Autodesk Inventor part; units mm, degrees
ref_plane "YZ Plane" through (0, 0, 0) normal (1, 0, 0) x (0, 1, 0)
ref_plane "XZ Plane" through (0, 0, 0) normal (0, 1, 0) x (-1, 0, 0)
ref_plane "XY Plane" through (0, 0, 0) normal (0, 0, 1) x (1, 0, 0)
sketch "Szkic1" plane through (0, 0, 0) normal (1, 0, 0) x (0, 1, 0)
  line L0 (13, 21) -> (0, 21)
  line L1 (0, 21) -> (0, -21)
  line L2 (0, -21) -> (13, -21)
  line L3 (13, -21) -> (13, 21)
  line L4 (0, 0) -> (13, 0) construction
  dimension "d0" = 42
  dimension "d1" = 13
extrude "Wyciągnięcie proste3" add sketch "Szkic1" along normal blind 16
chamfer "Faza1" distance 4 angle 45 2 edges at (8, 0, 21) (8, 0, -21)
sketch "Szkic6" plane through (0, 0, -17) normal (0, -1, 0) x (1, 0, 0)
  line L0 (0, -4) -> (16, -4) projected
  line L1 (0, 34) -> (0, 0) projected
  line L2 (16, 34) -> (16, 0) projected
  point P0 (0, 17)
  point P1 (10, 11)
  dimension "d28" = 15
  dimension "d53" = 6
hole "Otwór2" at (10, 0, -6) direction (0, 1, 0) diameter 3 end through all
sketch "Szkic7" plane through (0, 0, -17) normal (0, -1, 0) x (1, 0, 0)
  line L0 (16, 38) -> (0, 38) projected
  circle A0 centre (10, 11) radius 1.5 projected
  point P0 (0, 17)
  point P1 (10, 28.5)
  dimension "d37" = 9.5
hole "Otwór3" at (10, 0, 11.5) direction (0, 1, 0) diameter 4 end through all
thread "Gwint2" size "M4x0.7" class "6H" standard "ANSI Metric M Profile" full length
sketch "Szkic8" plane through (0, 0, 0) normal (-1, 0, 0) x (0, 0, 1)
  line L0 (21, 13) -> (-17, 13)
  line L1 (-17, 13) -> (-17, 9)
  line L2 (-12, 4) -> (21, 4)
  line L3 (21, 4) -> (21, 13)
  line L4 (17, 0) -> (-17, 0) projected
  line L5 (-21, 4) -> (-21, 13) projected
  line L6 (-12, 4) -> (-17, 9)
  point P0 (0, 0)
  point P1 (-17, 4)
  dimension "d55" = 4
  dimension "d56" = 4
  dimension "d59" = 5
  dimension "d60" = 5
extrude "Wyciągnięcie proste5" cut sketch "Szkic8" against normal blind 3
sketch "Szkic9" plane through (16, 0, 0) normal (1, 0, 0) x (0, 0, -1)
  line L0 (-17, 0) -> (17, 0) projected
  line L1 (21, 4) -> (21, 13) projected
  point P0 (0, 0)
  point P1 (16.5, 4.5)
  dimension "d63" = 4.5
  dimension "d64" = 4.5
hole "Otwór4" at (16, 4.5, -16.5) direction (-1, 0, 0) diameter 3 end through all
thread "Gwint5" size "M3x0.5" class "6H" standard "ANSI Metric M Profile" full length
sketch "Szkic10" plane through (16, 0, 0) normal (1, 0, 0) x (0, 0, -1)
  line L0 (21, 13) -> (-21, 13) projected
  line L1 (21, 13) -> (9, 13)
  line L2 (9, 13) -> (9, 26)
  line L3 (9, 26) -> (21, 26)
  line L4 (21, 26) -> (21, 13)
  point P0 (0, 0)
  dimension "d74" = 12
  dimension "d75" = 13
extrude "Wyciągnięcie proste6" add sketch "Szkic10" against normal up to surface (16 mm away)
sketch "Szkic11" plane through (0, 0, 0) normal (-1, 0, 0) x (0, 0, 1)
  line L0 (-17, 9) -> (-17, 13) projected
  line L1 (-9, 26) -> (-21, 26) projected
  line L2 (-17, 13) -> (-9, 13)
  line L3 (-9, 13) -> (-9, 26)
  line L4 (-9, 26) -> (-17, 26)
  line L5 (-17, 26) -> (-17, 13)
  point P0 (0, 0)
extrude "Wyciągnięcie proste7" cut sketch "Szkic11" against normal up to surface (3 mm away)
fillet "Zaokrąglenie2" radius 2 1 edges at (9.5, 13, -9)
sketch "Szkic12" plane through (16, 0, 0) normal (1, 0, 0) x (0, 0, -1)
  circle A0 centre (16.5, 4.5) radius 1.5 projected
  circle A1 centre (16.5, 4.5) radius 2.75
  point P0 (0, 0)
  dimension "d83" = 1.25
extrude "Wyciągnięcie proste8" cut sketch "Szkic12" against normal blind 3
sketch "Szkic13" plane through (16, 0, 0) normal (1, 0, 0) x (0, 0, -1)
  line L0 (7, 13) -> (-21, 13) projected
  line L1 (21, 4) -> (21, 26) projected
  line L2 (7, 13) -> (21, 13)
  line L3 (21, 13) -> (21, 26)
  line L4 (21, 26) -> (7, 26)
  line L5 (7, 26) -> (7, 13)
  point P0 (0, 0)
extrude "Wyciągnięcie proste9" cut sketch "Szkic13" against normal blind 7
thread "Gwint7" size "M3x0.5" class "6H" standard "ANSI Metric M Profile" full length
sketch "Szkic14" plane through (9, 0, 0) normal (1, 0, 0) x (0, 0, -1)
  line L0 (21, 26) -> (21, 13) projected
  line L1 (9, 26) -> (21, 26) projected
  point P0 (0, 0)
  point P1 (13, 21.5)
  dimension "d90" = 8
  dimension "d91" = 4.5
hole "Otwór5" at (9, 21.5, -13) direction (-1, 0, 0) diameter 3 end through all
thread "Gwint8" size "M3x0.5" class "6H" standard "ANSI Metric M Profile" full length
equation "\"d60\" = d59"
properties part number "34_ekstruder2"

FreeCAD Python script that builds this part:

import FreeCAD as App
import Part
import Sketcher

V = App.Vector


def edges_at(feature, points):
    """Names of the edges that pass closest to the given points."""
    edges = feature.Shape.Edges
    near = lambda p: min(range(len(edges)), key=lambda i: edges[i].distToShape(Part.Vertex(*p))[0])
    return sorted({f"Edge{near(p) + 1}" for p in points})


def add_polygon(sketch, points):
    """Adds a closed chain of lines whose ends are joined by coincident constraints."""
    first, n = sketch.GeometryCount, len(points)
    for a, b in zip(points, points[1:] + points[:1]):
        sketch.addGeometry(Part.LineSegment(App.Vector(*a, 0), App.Vector(*b, 0)), False)
    for i in range(n):
        sketch.addConstraint(Sketcher.Constraint("Coincident", first + i, 2, first + (i + 1) % n, 1))

doc = App.newDocument("Part")
params = doc.addObject("Spreadsheet::Sheet", "Params")
for row, (alias, value) in enumerate([
    ("sketch1_width", "13 mm"),
    ("sketch1_height", "42 mm"),
    ("pad1_length", "16 mm"),
    ("chamfer_size", "4 mm"),
    ("sketch2_diameter", "3 mm"),
    ("hole_diameter", "3 mm"),
    ("sketch3_diameter", "4 mm"),
    ("hole2_diameter", "4 mm"),
    ("sketch4_width", "4 mm"),
    ("sketch4_height", "38 mm"),
    ("pocket1_length", "3 mm"),
    ("sketch5_diameter", "3 mm"),
    ("hole3_diameter", "3 mm"),
    ("sketch6_width", "13 mm"),
    ("sketch6_height", "12 mm"),
    ("pad2_length", "16 mm"),
    ("sketch7_width", "13 mm"),
    ("sketch7_height", "8 mm"),
    ("pocket2_length", "3 mm"),
    ("fillet_radius", "2 mm"),
    ("sketch8_diameter", "3 mm"),
    ("sketch8_diameter2", "5.5 mm"),
    ("pocket3_length", "3 mm"),
    ("sketch9_width", "13 mm"),
    ("sketch9_height", "14 mm"),
    ("pocket4_length", "7 mm"),
    ("sketch10_diameter", "3 mm"),
    ("hole4_diameter", "3 mm"),
], start=1):
    params.set(f"A{row}", alias)
    params.set(f"B{row}", "=" + value)
    params.setAlias(f"B{row}", alias)

body = doc.addObject("PartDesign::Body", "Body")

# Sketch on YZ plane
sketch1 = body.newObject("Sketcher::SketchObject", "Sketch")
sketch1.AttachmentSupport = (doc.getObject("YZ_Plane"), [""])
sketch1.MapMode = "FlatFace"
add_polygon(sketch1, [(13, -21), (13, 21), (0, 21), (0, -21)])  # lines 0-3
sketch1.addConstraint([
    Sketcher.Constraint("Vertical", 0),
    Sketcher.Constraint("Horizontal", 1),
    Sketcher.Constraint("Vertical", 2),
    Sketcher.Constraint("Horizontal", 3),
    Sketcher.Constraint("Symmetric", 1, 2, 2, 2, -1, 1),
    Sketcher.Constraint("DistanceX", 1, 2, 1, 1, 13.0),
    Sketcher.Constraint("DistanceY", 0, 1, 0, 2, 42.0),
])
sketch1.setExpression("Constraints[9]", "Params.sketch1_width")
sketch1.setExpression("Constraints[10]", "Params.sketch1_height")
pad1 = body.newObject("PartDesign::Pad", "Pad")
pad1.Profile = sketch1
pad1.setExpression("Length", "Params.pad1_length")
doc.recompute()

chamfer = body.newObject("PartDesign::Chamfer", "Chamfer")
chamfer.Base = (pad1, edges_at(pad1, [(8, 0, 21), (8, 0, -21)]))
chamfer.setExpression("Size", "Params.chamfer_size")

# Sketch on XZ plane
sketch2 = body.newObject("Sketcher::SketchObject", "Sketch001")
sketch2.AttachmentSupport = (doc.getObject("XZ_Plane"), [""])
sketch2.MapMode = "FlatFace"
sketch2.addGeometry(Part.Circle(V(10, -6, 0), V(0, 0, 1), 1.5), False)
sketch2.addConstraint([
    Sketcher.Constraint("Diameter", 0, 3.0),
    Sketcher.Constraint("DistanceX", -1, 1, 0, 3, 10.0),
    Sketcher.Constraint("DistanceY", 0, 3, -1, 1, 6.0),
])
sketch2.setExpression("Constraints[0]", "Params.sketch2_diameter")
doc.recompute()
hole = body.newObject("PartDesign::Hole", "Hole")
hole.Profile = sketch2
hole.ThreadType = "None"
hole.setExpression("Diameter", "Params.hole_diameter")
hole.DepthType = "ThroughAll"

# Sketch on XZ plane
sketch3 = body.newObject("Sketcher::SketchObject", "Sketch002")
sketch3.AttachmentSupport = (doc.getObject("XZ_Plane"), [""])
sketch3.MapMode = "FlatFace"
sketch3.addGeometry(Part.Circle(V(10, 11.5, 0), V(0, 0, 1), 2), False)
sketch3.addConstraint([
    Sketcher.Constraint("Diameter", 0, 4.0),
    Sketcher.Constraint("DistanceX", -1, 1, 0, 3, 10.0),
    Sketcher.Constraint("DistanceY", -1, 1, 0, 3, 11.5),
])
sketch3.setExpression("Constraints[0]", "Params.sketch3_diameter")
doc.recompute()
hole2 = body.newObject("PartDesign::Hole", "Hole001")
hole2.Profile = sketch3
hole2.ThreadType = "None"
hole2.setExpression("Diameter", "Params.hole2_diameter")
hole2.DepthType = "ThroughAll"

# Sketch on YZ plane
sketch4 = body.newObject("Sketcher::SketchObject", "Sketch003")
sketch4.AttachmentSupport = (doc.getObject("YZ_Plane"), [""])
sketch4.MapMode = "FlatFace"
add_polygon(sketch4, [(4, 21), (13, 21), (13, -17), (9, -17), (4, -12)])  # lines 0-4
sketch4.addConstraint([
    Sketcher.Constraint("Horizontal", 0),
    Sketcher.Constraint("Vertical", 1),
    Sketcher.Constraint("Horizontal", 2),
    Sketcher.Constraint("Vertical", 4),
    Sketcher.Constraint("DistanceX", 2, 2, 2, 1, 4.0),
    Sketcher.Constraint("DistanceX", -1, 1, 3, 2, 4.0),
    Sketcher.Constraint("DistanceX", 3, 2, 2, 2, 5.0),
    Sketcher.Constraint("DistanceY", 2, 2, 3, 2, 5.0),
    Sketcher.Constraint("DistanceY", 1, 2, 1, 1, 38.0),
    Sketcher.Constraint("DistanceY", -1, 1, 0, 2, 21.0),
])
sketch4.setExpression("Constraints[9]", "Params.sketch4_width")
sketch4.setExpression("Constraints[13]", "Params.sketch4_height")
pocket1 = body.newObject("PartDesign::Pocket", "Pocket")
pocket1.Profile = sketch4
pocket1.setExpression("Length", "Params.pocket1_length")
pocket1.Reversed = True

# Sketch on YZ plane
sketch5 = body.newObject("Sketcher::SketchObject", "Sketch004")
sketch5.AttachmentSupport = (doc.getObject("YZ_Plane"), [""])
sketch5.MapMode = "FlatFace"
sketch5.AttachmentOffset = App.Placement(V(0, 0, 16), App.Rotation())
sketch5.addGeometry(Part.Circle(V(4.5, -16.5, 0), V(0, 0, 1), 1.5), False)
sketch5.addConstraint([
    Sketcher.Constraint("Diameter", 0, 3.0),
    Sketcher.Constraint("DistanceX", -1, 1, 0, 3, 4.5),
    Sketcher.Constraint("DistanceY", 0, 3, -1, 1, 16.5),
])
sketch5.setExpression("Constraints[0]", "Params.sketch5_diameter")
doc.recompute()
hole3 = body.newObject("PartDesign::Hole", "Hole002")
hole3.Profile = sketch5
hole3.ThreadType = "None"
hole3.setExpression("Diameter", "Params.hole3_diameter")
hole3.DepthType = "ThroughAll"

# Sketch on YZ plane
sketch6 = body.newObject("Sketcher::SketchObject", "Sketch005")
sketch6.AttachmentSupport = (doc.getObject("YZ_Plane"), [""])
sketch6.MapMode = "FlatFace"
sketch6.AttachmentOffset = App.Placement(V(0, 0, 16), App.Rotation())
add_polygon(sketch6, [(13, -9), (13, -21), (26, -21), (26, -9)])  # lines 0-3
sketch6.addConstraint([
    Sketcher.Constraint("Vertical", 0),
    Sketcher.Constraint("Horizontal", 1),
    Sketcher.Constraint("Vertical", 2),
    Sketcher.Constraint("Horizontal", 3),
    Sketcher.Constraint("DistanceX", 1, 1, 1, 2, 13.0),
    Sketcher.Constraint("DistanceY", 0, 2, 0, 1, 12.0),
    Sketcher.Constraint("DistanceX", -1, 1, 0, 2, 13.0),
    Sketcher.Constraint("DistanceY", 0, 2, -1, 1, 21.0),
])
sketch6.setExpression("Constraints[8]", "Params.sketch6_width")
sketch6.setExpression("Constraints[9]", "Params.sketch6_height")
pad2 = body.newObject("PartDesign::Pad", "Pad001")
pad2.Profile = sketch6
pad2.setExpression("Length", "Params.pad2_length")
pad2.Reversed = True

# Sketch on YZ plane
sketch7 = body.newObject("Sketcher::SketchObject", "Sketch006")
sketch7.AttachmentSupport = (doc.getObject("YZ_Plane"), [""])
sketch7.MapMode = "FlatFace"
add_polygon(sketch7, [(13, -9), (26, -9), (26, -17), (13, -17)])  # lines 0-3
sketch7.addConstraint([
    Sketcher.Constraint("Horizontal", 0),
    Sketcher.Constraint("Vertical", 1),
    Sketcher.Constraint("Horizontal", 2),
    Sketcher.Constraint("Vertical", 3),
    Sketcher.Constraint("DistanceX", 0, 1, 0, 2, 13.0),
    Sketcher.Constraint("DistanceY", 1, 2, 1, 1, 8.0),
    Sketcher.Constraint("DistanceX", -1, 1, 0, 2, 26.0),
    Sketcher.Constraint("DistanceY", 0, 2, -1, 1, 9.0),
])
sketch7.setExpression("Constraints[8]", "Params.sketch7_width")
sketch7.setExpression("Constraints[9]", "Params.sketch7_height")
pocket2 = body.newObject("PartDesign::Pocket", "Pocket001")
pocket2.Profile = sketch7
pocket2.setExpression("Length", "Params.pocket2_length")
pocket2.Reversed = True
doc.recompute()

fillet = body.newObject("PartDesign::Fillet", "Fillet")
fillet.Base = (pocket2, edges_at(pocket2, [(9.5, 13, -9)]))
fillet.setExpression("Radius", "Params.fillet_radius")

# Sketch on YZ plane
sketch8 = body.newObject("Sketcher::SketchObject", "Sketch007")
sketch8.AttachmentSupport = (doc.getObject("YZ_Plane"), [""])
sketch8.MapMode = "FlatFace"
sketch8.AttachmentOffset = App.Placement(V(0, 0, 16), App.Rotation())
sketch8.addGeometry([
    Part.Circle(V(4.5, -16.5, 0), V(0, 0, 1), 2.75),
    Part.Circle(V(4.5, -16.5, 0), V(0, 0, 1), 1.5),
], False)
sketch8.addConstraint([
    Sketcher.Constraint("Coincident", 1, 3, 0, 3),
    Sketcher.Constraint("Diameter", 1, 3.0),
    Sketcher.Constraint("Diameter", 0, 5.5),
    Sketcher.Constraint("DistanceX", -1, 1, 0, 3, 4.5),
    Sketcher.Constraint("DistanceY", 0, 3, -1, 1, 16.5),
])
sketch8.setExpression("Constraints[1]", "Params.sketch8_diameter")
sketch8.setExpression("Constraints[2]", "Params.sketch8_diameter2")
pocket3 = body.newObject("PartDesign::Pocket", "Pocket002")
pocket3.Profile = sketch8
pocket3.setExpression("Length", "Params.pocket3_length")

# Sketch on YZ plane
sketch9 = body.newObject("Sketcher::SketchObject", "Sketch008")
sketch9.AttachmentSupport = (doc.getObject("YZ_Plane"), [""])
sketch9.MapMode = "FlatFace"
sketch9.AttachmentOffset = App.Placement(V(0, 0, 16), App.Rotation())
add_polygon(sketch9, [(13, -7), (13, -21), (26, -21), (26, -7)])  # lines 0-3
sketch9.addConstraint([
    Sketcher.Constraint("Vertical", 0),
    Sketcher.Constraint("Horizontal", 1),
    Sketcher.Constraint("Vertical", 2),
    Sketcher.Constraint("Horizontal", 3),
    Sketcher.Constraint("DistanceX", 1, 1, 1, 2, 13.0),
    Sketcher.Constraint("DistanceY", 0, 2, 0, 1, 14.0),
    Sketcher.Constraint("DistanceX", -1, 1, 0, 2, 13.0),
    Sketcher.Constraint("DistanceY", 0, 2, -1, 1, 21.0),
])
sketch9.setExpression("Constraints[8]", "Params.sketch9_width")
sketch9.setExpression("Constraints[9]", "Params.sketch9_height")
pocket4 = body.newObject("PartDesign::Pocket", "Pocket003")
pocket4.Profile = sketch9
pocket4.setExpression("Length", "Params.pocket4_length")

# Sketch on YZ plane
sketch10 = body.newObject("Sketcher::SketchObject", "Sketch009")
sketch10.AttachmentSupport = (doc.getObject("YZ_Plane"), [""])
sketch10.MapMode = "FlatFace"
sketch10.AttachmentOffset = App.Placement(V(0, 0, 9), App.Rotation())
sketch10.addGeometry(Part.Circle(V(21.5, -13, 0), V(0, 0, 1), 1.5), False)
sketch10.addConstraint([
    Sketcher.Constraint("Diameter", 0, 3.0),
    Sketcher.Constraint("DistanceY", 0, 3, -1, 1, 13.0),
    Sketcher.Constraint("DistanceX", -1, 1, 0, 3, 21.5),
])
sketch10.setExpression("Constraints[0]", "Params.sketch10_diameter")
doc.recompute()
hole4 = body.newObject("PartDesign::Hole", "Hole003")
hole4.Profile = sketch10
hole4.ThreadType = "None"
hole4.setExpression("Diameter", "Params.hole4_diameter")
hole4.DepthType = "ThroughAll"

doc.recompute()
